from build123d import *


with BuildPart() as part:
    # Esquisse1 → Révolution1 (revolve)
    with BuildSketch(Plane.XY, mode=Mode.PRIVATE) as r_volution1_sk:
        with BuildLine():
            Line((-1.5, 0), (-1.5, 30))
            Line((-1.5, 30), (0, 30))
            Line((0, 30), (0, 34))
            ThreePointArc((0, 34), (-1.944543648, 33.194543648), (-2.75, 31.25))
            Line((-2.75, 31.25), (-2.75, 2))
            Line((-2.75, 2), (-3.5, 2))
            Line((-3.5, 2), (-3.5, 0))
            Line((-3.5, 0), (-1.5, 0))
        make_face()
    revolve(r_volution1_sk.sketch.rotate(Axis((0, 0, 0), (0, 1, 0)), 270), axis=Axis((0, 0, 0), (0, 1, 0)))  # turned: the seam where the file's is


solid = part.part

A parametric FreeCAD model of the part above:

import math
import FreeCAD as App
import Part
import Sketcher
Q = App.Units.Quantity

doc = App.newDocument("Part")
body = doc.addObject("PartDesign::Body", "Body")

# Sketch on XY plane
sketch1 = doc.addObject("Sketcher::SketchObject", "Sketch")
body.addObject(sketch1)
sketch1.AttachmentSupport = (doc.XY_Plane, [""])
sketch1.MapMode = "FlatFace"
sketch1.addGeometry([
    Part.LineSegment(App.Vector(-1.5, 0, 0), App.Vector(-1.5, 30, 0)),  # 0
    Part.LineSegment(App.Vector(-1.5, 30, 0), App.Vector(0, 30, 0)),  # 1
    Part.LineSegment(App.Vector(0, 30, 0), App.Vector(0, 34, 0)),  # 2
    Part.ArcOfCircle(Part.Circle(App.Vector(0, 31.2, 0), App.Vector(0, 0, 1), 2.8), math.radians(90), math.radians(180)),  # 3
    Part.LineSegment(App.Vector(-2.8, 31.2, 0), App.Vector(-2.8, 2, 0)),  # 4
    Part.LineSegment(App.Vector(-2.8, 2, 0), App.Vector(-3.5, 2, 0)),  # 5
    Part.LineSegment(App.Vector(-3.5, 2, 0), App.Vector(-3.5, 0, 0)),  # 6
    Part.LineSegment(App.Vector(-3.5, 0, 0), App.Vector(-1.5, 0, 0)),  # 7
], False)
sketch1.addConstraint([
    Sketcher.Constraint("Coincident", 0, 2, 1, 1),
    Sketcher.Constraint("Coincident", 1, 2, 2, 1),
    Sketcher.Constraint("Coincident", 2, 2, 3, 1),
    Sketcher.Constraint("Tangent", 3, 2, 4, 1),
    Sketcher.Constraint("Coincident", 4, 2, 5, 1),
    Sketcher.Constraint("Coincident", 5, 2, 6, 1),
    Sketcher.Constraint("Coincident", 6, 2, 7, 1),
    Sketcher.Constraint("Coincident", 7, 2, 0, 1),
    Sketcher.Constraint("Vertical", 0),
    Sketcher.Constraint("Horizontal", 1),
    Sketcher.Constraint("Vertical", 2),
    Sketcher.Constraint("Vertical", 4),
    Sketcher.Constraint("Horizontal", 5),
    Sketcher.Constraint("Vertical", 6),
    Sketcher.Constraint("Horizontal", 7),
    Sketcher.Constraint("PointOnObject", 3, 3, -2),
    Sketcher.Constraint("PointOnObject", 1, 2, -2),
    Sketcher.Constraint("PointOnObject", 6, 2, -1),
    Sketcher.Constraint("Equal", 7, 6),
    Sketcher.Constraint("DistanceX", 7, 1, 7, 2, Q("2 mm")),
    Sketcher.Constraint("DistanceY", 0, 1, 0, 2, Q("30 mm")),
    Sketcher.Constraint("DistanceY", 2, 1, 2, 2, Q("4 mm")),
    Sketcher.Constraint("Radius", 3, Q("2.75 mm")),
    Sketcher.Constraint("DistanceX", 1, 1, 1, 2, Q("1.5 mm")),
])
revolution = doc.addObject("PartDesign::Revolution", "Revolution")
body.addObject(revolution)
revolution.Profile = sketch1
revolution.ReferenceAxis = (sketch1, ["V_Axis"])
revolution.Angle = 360

doc.recompute()
